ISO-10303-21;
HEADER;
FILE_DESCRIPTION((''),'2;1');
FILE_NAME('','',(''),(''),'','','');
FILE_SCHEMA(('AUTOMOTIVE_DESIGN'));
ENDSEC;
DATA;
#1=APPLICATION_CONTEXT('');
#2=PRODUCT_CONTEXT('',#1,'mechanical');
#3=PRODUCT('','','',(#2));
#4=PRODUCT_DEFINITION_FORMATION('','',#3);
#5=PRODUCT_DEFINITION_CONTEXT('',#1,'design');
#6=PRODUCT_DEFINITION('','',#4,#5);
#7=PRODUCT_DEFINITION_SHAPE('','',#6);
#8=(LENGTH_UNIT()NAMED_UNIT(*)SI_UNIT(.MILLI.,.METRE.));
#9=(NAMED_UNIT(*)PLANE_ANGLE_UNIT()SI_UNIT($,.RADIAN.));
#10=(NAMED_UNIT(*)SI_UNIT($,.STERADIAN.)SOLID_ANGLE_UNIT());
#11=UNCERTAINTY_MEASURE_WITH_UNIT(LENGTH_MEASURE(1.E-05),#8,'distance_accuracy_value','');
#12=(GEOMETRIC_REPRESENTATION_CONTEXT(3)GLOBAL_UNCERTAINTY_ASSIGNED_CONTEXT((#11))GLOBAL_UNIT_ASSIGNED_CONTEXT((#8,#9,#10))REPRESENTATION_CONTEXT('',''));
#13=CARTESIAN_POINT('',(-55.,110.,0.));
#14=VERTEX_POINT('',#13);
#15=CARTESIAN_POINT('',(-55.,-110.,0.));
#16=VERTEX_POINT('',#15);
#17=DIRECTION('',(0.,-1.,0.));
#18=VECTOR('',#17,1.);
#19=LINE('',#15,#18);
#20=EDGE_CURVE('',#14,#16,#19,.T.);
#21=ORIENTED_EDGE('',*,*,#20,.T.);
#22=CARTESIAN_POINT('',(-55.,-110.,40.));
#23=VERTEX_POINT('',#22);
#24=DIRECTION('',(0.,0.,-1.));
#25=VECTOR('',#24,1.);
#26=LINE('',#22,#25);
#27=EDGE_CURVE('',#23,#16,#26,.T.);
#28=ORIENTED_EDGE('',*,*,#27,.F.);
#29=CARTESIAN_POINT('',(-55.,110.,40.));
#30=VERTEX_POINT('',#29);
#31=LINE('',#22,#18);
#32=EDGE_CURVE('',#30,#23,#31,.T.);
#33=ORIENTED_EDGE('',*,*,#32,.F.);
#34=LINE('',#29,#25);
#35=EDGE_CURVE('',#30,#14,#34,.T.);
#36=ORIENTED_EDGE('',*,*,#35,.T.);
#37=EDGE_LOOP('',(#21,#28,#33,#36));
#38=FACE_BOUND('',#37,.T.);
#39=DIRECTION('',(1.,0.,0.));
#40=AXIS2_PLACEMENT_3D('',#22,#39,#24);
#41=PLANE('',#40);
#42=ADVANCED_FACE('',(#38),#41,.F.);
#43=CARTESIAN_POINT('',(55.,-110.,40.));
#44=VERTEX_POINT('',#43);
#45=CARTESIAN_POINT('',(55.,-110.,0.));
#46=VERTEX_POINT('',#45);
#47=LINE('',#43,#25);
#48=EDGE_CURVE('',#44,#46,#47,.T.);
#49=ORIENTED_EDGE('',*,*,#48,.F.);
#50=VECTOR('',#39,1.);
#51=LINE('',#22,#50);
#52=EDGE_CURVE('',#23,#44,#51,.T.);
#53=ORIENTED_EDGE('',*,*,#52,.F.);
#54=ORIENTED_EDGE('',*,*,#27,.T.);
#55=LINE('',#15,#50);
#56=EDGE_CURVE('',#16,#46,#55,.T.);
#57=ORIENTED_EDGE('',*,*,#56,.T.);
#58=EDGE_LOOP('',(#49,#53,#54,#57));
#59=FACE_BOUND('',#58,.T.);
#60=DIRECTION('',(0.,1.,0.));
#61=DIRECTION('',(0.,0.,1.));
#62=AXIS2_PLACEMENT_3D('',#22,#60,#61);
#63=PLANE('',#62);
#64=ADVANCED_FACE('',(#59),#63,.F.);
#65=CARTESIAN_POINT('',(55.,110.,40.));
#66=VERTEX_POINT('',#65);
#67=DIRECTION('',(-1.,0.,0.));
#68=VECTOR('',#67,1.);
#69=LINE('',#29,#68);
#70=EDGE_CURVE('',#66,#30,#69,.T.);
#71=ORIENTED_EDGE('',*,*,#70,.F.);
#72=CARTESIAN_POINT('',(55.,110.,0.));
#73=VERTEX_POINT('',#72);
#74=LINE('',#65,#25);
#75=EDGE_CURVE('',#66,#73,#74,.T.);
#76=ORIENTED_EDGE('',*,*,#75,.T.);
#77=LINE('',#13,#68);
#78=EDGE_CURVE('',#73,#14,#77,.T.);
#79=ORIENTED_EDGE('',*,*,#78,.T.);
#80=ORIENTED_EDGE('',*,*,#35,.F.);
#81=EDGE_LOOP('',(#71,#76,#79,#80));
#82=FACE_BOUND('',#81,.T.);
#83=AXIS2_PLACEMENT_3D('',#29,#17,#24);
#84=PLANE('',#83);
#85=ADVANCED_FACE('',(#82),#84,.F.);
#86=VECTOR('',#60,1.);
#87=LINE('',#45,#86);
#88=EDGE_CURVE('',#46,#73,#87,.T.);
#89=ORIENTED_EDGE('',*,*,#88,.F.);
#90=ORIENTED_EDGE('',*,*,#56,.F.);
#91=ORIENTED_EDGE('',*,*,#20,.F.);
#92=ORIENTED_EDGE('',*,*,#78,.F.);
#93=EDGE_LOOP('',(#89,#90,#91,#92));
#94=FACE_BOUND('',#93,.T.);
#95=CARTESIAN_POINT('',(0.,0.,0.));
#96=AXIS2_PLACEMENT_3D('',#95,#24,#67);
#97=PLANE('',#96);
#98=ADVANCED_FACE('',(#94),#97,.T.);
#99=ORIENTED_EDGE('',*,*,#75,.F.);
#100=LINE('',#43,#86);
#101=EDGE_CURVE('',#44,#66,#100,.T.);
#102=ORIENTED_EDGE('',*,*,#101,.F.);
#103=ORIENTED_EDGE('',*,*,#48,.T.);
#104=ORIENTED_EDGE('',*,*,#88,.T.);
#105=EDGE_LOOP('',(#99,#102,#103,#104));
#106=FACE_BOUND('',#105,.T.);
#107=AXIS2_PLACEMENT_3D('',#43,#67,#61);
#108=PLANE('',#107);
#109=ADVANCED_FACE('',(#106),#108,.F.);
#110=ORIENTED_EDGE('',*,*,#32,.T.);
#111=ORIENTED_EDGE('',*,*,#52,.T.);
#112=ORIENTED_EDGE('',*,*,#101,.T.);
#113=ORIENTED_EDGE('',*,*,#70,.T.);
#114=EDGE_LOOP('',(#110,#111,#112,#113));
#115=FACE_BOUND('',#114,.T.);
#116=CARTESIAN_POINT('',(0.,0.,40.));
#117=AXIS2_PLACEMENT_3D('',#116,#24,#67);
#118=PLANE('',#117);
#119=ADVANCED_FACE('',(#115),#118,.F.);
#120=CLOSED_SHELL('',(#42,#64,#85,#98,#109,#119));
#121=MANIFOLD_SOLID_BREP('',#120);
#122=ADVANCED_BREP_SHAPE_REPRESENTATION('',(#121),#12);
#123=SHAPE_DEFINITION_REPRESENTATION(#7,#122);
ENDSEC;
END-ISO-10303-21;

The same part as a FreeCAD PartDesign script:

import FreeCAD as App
import Part
import Sketcher

V = App.Vector
Q = App.Units.Quantity

doc = App.newDocument("Part")
params = doc.addObject("Spreadsheet::Sheet", "Params")
for row, (alias, value) in enumerate([
    ("sketch1_width", "110 mm"),
    ("sketch1_height", "220 mm"),
    ("pad1_length", "40 mm"),
], start=1):
    params.set(f"A{row}", alias)
    params.set(f"B{row}", "=" + value)
    params.setAlias(f"B{row}", alias)

body = doc.addObject("PartDesign::Body", "Body")

sketch1 = body.newObject("Sketcher::SketchObject", "Sketch")
sketch1.AttachmentSupport = (doc.getObject("XY_Plane"), [""])
sketch1.MapMode = "FlatFace"
sketch1.addGeometry([
    Part.LineSegment(V(-55, 110, 0), V(-55, -110, 0)),
    Part.LineSegment(V(-55, -110, 0), V(55, -110, 0)),
    Part.LineSegment(V(55, -110, 0), V(55, 110, 0)),
    Part.LineSegment(V(55, 110, 0), V(-55, 110, 0)),
], False)
sketch1.addConstraint([
    Sketcher.Constraint("Coincident", 0, 2, 1, 1),
    Sketcher.Constraint("Coincident", 1, 2, 2, 1),
    Sketcher.Constraint("Coincident", 2, 2, 3, 1),
    Sketcher.Constraint("Coincident", 3, 2, 0, 1),
    Sketcher.Constraint("Vertical", 0),
    Sketcher.Constraint("Horizontal", 1),
    Sketcher.Constraint("Vertical", 2),
    Sketcher.Constraint("Horizontal", 3),
    Sketcher.Constraint("Symmetric", 0, 2, 2, 2, -1, 1),
    Sketcher.Constraint("DistanceX", 1, 1, 1, 2, Q("110 mm")),
    Sketcher.Constraint("DistanceY", 0, 2, 0, 1, Q("220 mm")),
])
sketch1.setExpression("Constraints[9]", "Params.sketch1_width")
sketch1.setExpression("Constraints[10]", "Params.sketch1_height")
pad1 = body.newObject("PartDesign::Pad", "Pad")
pad1.Profile = sketch1
pad1.setExpression("Length", "Params.pad1_length")

doc.recompute()
